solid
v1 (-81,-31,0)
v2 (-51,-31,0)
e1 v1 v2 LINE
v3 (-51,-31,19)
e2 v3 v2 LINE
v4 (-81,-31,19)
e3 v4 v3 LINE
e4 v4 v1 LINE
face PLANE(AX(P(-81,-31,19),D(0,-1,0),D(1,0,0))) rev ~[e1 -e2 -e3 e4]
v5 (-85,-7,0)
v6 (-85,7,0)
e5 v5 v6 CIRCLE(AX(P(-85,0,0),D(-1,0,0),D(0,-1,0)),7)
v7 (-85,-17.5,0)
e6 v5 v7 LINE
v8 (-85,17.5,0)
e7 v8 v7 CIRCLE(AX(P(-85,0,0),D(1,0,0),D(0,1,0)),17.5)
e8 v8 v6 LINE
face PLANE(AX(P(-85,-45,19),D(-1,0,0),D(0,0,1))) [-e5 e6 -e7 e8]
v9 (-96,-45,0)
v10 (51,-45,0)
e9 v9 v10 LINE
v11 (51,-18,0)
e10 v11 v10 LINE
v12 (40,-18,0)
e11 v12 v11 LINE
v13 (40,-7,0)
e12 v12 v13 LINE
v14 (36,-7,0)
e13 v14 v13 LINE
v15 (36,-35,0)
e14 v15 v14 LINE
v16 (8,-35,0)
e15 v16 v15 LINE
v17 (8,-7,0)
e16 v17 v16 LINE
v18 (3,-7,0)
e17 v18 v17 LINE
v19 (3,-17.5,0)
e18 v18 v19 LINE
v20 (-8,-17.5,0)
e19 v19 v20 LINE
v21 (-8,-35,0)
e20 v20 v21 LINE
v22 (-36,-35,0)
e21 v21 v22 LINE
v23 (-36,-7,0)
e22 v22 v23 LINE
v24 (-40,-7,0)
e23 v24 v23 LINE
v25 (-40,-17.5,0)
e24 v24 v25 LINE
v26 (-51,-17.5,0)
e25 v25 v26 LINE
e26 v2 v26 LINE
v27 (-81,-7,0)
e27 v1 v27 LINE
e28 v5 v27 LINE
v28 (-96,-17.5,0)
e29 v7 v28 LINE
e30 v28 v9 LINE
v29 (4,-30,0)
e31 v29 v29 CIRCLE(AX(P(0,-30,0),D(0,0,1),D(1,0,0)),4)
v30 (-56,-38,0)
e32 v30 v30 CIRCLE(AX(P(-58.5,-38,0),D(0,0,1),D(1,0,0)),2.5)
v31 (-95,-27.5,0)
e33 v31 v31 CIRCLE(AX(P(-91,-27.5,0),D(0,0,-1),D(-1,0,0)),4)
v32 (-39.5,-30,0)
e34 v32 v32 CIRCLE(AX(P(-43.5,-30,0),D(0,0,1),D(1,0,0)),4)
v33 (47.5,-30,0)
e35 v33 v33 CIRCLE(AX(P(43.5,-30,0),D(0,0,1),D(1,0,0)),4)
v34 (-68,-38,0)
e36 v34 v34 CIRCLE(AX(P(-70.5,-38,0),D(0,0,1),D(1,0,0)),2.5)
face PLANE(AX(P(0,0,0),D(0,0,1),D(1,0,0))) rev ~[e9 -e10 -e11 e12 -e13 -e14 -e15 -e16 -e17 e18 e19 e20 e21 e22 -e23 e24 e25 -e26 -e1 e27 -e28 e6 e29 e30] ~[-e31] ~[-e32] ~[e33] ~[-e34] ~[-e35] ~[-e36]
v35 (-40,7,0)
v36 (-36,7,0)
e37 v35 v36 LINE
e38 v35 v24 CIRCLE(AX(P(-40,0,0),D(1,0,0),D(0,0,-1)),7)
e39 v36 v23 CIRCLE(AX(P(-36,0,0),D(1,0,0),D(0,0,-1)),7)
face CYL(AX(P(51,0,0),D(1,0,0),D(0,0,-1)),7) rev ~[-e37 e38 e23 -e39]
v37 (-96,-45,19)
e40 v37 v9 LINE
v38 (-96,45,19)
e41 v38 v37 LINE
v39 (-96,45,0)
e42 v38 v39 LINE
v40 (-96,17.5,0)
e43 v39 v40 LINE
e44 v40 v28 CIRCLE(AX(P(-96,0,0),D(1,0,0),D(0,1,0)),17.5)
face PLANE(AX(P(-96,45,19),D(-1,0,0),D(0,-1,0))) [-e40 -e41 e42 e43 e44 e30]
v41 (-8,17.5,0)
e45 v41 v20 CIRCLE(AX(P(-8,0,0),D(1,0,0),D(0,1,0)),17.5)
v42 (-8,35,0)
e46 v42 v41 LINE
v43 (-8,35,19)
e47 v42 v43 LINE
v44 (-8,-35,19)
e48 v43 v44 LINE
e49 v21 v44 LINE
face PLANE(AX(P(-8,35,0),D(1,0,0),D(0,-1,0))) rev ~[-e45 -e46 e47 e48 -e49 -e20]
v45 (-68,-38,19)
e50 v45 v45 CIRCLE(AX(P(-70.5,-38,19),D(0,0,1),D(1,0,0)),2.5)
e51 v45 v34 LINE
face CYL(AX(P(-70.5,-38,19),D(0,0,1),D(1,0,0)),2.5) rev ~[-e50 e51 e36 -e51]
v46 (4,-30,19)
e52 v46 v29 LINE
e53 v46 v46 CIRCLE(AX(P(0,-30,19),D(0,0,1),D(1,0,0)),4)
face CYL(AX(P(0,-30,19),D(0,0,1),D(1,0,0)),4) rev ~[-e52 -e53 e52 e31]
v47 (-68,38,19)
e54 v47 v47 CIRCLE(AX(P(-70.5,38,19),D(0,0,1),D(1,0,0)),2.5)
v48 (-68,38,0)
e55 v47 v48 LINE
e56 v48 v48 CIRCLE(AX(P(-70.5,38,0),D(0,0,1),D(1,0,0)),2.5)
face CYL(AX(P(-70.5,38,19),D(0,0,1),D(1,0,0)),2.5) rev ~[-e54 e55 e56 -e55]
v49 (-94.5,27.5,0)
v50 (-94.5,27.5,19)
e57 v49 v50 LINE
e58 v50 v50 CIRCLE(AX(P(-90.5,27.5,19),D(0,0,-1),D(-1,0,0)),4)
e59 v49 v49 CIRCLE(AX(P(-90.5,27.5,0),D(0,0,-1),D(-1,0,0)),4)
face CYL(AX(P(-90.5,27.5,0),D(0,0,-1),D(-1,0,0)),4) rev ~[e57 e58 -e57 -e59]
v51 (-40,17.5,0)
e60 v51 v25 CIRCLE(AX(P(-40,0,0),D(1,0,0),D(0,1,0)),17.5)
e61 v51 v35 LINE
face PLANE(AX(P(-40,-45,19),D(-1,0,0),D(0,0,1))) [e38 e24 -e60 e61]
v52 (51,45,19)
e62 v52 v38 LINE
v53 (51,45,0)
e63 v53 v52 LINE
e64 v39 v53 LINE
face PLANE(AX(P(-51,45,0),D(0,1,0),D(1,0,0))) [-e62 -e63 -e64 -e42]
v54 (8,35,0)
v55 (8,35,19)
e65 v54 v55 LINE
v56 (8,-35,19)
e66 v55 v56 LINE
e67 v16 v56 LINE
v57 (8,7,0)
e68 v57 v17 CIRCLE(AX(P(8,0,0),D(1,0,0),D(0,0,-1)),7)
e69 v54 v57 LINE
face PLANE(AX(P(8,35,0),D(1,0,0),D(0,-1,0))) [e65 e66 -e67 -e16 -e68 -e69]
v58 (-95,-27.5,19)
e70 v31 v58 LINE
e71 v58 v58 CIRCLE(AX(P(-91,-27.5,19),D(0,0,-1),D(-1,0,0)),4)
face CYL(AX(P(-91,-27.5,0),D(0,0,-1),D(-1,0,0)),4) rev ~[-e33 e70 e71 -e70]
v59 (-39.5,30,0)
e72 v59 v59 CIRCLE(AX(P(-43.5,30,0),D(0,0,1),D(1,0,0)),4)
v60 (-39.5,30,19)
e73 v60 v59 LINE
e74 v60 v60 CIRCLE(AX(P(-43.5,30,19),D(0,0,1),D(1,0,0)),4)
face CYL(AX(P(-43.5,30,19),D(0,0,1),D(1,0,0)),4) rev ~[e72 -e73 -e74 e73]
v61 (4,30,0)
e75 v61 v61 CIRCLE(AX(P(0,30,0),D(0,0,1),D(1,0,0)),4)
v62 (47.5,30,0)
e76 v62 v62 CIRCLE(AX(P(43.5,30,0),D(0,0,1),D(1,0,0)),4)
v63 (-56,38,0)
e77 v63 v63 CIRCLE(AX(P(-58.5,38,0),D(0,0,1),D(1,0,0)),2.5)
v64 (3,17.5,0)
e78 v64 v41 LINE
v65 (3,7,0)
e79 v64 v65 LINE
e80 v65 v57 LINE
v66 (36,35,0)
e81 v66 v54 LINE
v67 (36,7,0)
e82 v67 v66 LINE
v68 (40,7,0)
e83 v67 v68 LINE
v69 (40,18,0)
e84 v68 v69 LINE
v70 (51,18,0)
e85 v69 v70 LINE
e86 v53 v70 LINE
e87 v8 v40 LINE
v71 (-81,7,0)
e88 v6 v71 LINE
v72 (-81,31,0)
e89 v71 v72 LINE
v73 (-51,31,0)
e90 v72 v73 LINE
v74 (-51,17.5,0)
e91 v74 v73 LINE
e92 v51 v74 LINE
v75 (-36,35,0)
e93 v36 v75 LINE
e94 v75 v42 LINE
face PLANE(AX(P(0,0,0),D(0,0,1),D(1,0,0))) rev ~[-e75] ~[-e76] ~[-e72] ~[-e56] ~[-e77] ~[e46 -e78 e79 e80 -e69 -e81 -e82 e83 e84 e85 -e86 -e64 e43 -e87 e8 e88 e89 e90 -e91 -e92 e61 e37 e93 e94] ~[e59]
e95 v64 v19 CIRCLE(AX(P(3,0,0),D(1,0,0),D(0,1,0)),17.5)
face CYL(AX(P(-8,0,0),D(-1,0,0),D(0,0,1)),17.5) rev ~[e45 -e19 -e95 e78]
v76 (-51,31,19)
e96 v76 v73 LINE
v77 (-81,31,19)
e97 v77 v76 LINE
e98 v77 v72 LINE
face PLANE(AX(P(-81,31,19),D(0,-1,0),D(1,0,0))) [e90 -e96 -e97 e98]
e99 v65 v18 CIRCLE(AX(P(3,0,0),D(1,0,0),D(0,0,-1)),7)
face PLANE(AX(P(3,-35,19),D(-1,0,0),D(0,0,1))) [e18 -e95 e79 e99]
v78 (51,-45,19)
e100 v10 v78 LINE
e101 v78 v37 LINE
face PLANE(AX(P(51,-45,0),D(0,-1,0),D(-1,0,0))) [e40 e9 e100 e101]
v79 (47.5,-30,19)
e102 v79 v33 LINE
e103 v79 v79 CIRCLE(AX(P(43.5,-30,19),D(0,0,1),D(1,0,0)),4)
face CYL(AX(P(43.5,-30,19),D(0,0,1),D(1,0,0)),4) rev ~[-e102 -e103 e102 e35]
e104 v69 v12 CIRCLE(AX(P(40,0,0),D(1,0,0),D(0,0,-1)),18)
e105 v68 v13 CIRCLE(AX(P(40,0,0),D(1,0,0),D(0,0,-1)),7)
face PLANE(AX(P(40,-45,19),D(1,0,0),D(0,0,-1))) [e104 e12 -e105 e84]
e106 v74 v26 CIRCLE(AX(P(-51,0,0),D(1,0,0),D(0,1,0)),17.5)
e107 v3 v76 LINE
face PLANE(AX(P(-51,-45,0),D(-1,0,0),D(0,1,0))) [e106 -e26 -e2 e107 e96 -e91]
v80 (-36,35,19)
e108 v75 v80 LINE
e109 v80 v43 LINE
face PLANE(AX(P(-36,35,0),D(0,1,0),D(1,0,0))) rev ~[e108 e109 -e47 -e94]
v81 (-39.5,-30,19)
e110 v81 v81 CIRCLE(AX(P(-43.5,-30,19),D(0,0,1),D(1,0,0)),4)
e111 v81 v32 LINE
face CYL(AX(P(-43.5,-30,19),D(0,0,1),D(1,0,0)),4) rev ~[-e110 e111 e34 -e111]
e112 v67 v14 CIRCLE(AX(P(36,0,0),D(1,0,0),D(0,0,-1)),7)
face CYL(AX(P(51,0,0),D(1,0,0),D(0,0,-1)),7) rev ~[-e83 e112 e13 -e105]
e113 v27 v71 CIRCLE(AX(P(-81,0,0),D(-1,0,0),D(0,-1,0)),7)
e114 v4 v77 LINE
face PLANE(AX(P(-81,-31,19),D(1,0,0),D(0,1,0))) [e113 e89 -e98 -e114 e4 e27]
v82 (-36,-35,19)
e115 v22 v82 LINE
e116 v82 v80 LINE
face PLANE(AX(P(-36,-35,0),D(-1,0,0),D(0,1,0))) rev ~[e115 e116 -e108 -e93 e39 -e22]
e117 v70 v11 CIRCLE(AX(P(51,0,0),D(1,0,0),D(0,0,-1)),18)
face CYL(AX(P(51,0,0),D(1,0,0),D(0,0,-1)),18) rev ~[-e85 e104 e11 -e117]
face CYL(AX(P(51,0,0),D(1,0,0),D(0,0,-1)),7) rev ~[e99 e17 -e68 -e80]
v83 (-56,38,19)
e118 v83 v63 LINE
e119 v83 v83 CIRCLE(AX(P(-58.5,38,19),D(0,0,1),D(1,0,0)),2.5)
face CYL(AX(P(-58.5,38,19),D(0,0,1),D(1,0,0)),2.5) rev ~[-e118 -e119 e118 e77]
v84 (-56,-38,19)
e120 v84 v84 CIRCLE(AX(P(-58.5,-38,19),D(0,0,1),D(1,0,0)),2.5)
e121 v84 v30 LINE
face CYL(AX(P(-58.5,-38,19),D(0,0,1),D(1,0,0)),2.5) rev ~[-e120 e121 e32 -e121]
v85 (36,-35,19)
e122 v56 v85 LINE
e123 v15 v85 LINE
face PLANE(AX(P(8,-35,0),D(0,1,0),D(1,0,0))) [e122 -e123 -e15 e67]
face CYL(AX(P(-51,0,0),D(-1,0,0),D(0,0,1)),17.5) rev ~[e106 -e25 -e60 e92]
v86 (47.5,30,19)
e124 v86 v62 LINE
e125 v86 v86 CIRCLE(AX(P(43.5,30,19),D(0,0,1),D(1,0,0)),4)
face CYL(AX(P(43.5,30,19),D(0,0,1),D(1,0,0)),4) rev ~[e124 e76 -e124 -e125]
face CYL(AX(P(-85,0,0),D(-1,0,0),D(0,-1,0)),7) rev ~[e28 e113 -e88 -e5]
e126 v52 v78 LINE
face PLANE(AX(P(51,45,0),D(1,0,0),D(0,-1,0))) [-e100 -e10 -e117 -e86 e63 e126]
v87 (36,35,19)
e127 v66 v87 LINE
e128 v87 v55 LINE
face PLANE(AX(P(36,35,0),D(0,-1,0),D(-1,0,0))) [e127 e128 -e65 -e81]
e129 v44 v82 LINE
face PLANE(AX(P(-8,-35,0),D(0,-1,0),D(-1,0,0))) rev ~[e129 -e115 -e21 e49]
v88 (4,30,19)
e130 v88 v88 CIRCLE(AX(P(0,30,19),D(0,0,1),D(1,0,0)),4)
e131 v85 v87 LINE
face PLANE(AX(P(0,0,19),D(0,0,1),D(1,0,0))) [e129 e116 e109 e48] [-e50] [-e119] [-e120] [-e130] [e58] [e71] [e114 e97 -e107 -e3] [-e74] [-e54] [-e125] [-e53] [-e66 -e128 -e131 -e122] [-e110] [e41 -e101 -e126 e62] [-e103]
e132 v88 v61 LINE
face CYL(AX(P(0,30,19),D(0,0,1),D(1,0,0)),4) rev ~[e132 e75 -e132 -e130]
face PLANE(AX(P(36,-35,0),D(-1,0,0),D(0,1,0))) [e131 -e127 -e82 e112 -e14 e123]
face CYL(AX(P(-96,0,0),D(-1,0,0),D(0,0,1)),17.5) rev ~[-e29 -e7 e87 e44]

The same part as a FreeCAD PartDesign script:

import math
import FreeCAD as App
import Part
import Sketcher

V = App.Vector


def add_polygon(sketch, points):
    """Adds a closed chain of lines whose ends are joined by coincident constraints."""
    first, n = sketch.GeometryCount, len(points)
    for a, b in zip(points, points[1:] + points[:1]):
        sketch.addGeometry(Part.LineSegment(App.Vector(*a, 0), App.Vector(*b, 0)), False)
    for i in range(n):
        sketch.addConstraint(Sketcher.Constraint("Coincident", first + i, 2, first + (i + 1) % n, 1))

doc = App.newDocument("Part")
params = doc.addObject("Spreadsheet::Sheet", "Params")
for row, (alias, value) in enumerate([
    ("sketch1_width", "28 mm"),
    ("sketch1_height", "70 mm"),
    ("pad1_length", "19 mm"),
    ("sketch2_diameter", "14 mm"),
    ("sketch3_diameter", "36 mm"),
    ("pocket2_length", "11 mm"),
    ("sketch4_diameter", "35 mm"),
    ("pocket3_length", "11 mm"),
    ("sketch5_diameter", "35 mm"),
    ("pocket4_length", "11 mm"),
    ("sketch6_diameter", "8 mm"),
    ("sketch7_width", "30 mm"),
    ("sketch7_height", "14 mm"),
    ("pad2_length", "19 mm"),
    ("sketch8_diameter", "35 mm"),
    ("pocket6_length", "11 mm"),
    ("sketch9_diameter", "8 mm"),
    ("sketch10_diameter", "5 mm"),
    ("sketch11_radius", "7 mm"),
    ("pocket9_length", "10 mm"),
], start=1):
    params.set(f"A{row}", alias)
    params.set(f"B{row}", "=" + value)
    params.setAlias(f"B{row}", alias)

body = doc.addObject("PartDesign::Body", "Body")

# Sketch on XY plane
sketch1 = body.newObject("Sketcher::SketchObject", "Sketch")
sketch1.AttachmentSupport = (doc.getObject("XY_Plane"), [""])
sketch1.MapMode = "FlatFace"
add_polygon(sketch1, [(-51, -45), (51, -45), (51, 45), (-51, 45)])  # lines 0-3
add_polygon(sketch1, [(-36, -35), (-36, 35), (-8, 35), (-8, -35)])  # lines 4-7
add_polygon(sketch1, [(8, 35), (36, 35), (36, -35), (8, -35)])  # lines 8-11
sketch1.addConstraint(Sketcher.Constraint("Horizontal", 0))
sketch1.addConstraint(Sketcher.Constraint("Vertical", 1))
sketch1.addConstraint(Sketcher.Constraint("Horizontal", 2))
sketch1.addConstraint(Sketcher.Constraint("Vertical", 3))
sketch1.addConstraint(Sketcher.Constraint("Vertical", 4))
sketch1.addConstraint(Sketcher.Constraint("Horizontal", 5))
sketch1.addConstraint(Sketcher.Constraint("Vertical", 6))
sketch1.addConstraint(Sketcher.Constraint("Horizontal", 7))
sketch1.addConstraint(Sketcher.Constraint("Horizontal", 8))
sketch1.addConstraint(Sketcher.Constraint("Vertical", 9))
sketch1.addConstraint(Sketcher.Constraint("Horizontal", 10))
sketch1.addConstraint(Sketcher.Constraint("Vertical", 11))
sketch1.addConstraint(Sketcher.Constraint("Symmetric", 0, 2, 2, 2, -1, 1))
sketch1.addConstraint(Sketcher.Constraint("Symmetric", 7, 2, 8, 2, -1, 1))
sketch1.addConstraint(Sketcher.Constraint("Symmetric", 5, 2, 10, 2, -1, 1))
sketch1.addConstraint(Sketcher.Constraint("Horizontal", 5, 2, 8, 2))
sketch1.addConstraint(Sketcher.Constraint("DistanceX", 5, 1, 5, 2, 28.0))
sketch1.addConstraint(Sketcher.Constraint("DistanceY", 4, 1, 4, 2, 70.0))
sketch1.addConstraint(Sketcher.Constraint("DistanceX", 2, 2, 4, 2, 15.0))
sketch1.addConstraint(Sketcher.Constraint("DistanceY", 4, 2, 2, 2, 10.0))
sketch1.addConstraint(Sketcher.Constraint("DistanceX", 6, 2, 10, 2, 16.0))
sketch1.setExpression("Constraints[28]", "Params.sketch1_width")
sketch1.setExpression("Constraints[29]", "Params.sketch1_height")
pad1 = body.newObject("PartDesign::Pad", "Pad")
pad1.Profile = sketch1
pad1.setExpression("Length", "Params.pad1_length")

# Sketch on YZ plane
sketch2 = body.newObject("Sketcher::SketchObject", "Sketch001")
sketch2.AttachmentSupport = (doc.getObject("YZ_Plane"), [""])
sketch2.MapMode = "FlatFace"
sketch2.AttachmentOffset = App.Placement(V(0, 0, 51), App.Rotation())
sketch2.addGeometry(Part.Circle(V(0, 0, 0), V(0, 0, 1), 7), False)
sketch2.addConstraint(Sketcher.Constraint("Coincident", 0, 3, -1, 1))
sketch2.addConstraint(Sketcher.Constraint("Diameter", 0, 14.0))
sketch2.setExpression("Constraints[1]", "Params.sketch2_diameter")
pocket1 = body.newObject("PartDesign::Pocket", "Pocket")
pocket1.Profile = sketch2
pocket1.Type = "ThroughAll"

# Sketch on YZ plane
sketch3 = body.newObject("Sketcher::SketchObject", "Sketch002")
sketch3.AttachmentSupport = (doc.getObject("YZ_Plane"), [""])
sketch3.MapMode = "FlatFace"
sketch3.AttachmentOffset = App.Placement(V(0, 0, 51), App.Rotation())
sketch3.addGeometry(Part.Circle(V(0, 0, 0), V(0, 0, 1), 18), False)
sketch3.addConstraint(Sketcher.Constraint("Coincident", 0, 3, -1, 1))
sketch3.addConstraint(Sketcher.Constraint("Diameter", 0, 36.0))
sketch3.setExpression("Constraints[1]", "Params.sketch3_diameter")
pocket2 = body.newObject("PartDesign::Pocket", "Pocket001")
pocket2.Profile = sketch3
pocket2.setExpression("Length", "Params.pocket2_length")

# Sketch on YZ plane
sketch4 = body.newObject("Sketcher::SketchObject", "Sketch003")
sketch4.AttachmentSupport = (doc.getObject("YZ_Plane"), [""])
sketch4.MapMode = "FlatFace"
sketch4.AttachmentOffset = App.Placement(V(0, 0, -51), App.Rotation())
sketch4.addGeometry(Part.Circle(V(0, 0, 0), V(0, 0, 1), 17.5), False)
sketch4.addConstraint(Sketcher.Constraint("Coincident", 0, 3, -1, 1))
sketch4.addConstraint(Sketcher.Constraint("Diameter", 0, 35.0))
sketch4.setExpression("Constraints[1]", "Params.sketch4_diameter")
pocket3 = body.newObject("PartDesign::Pocket", "Pocket002")
pocket3.Profile = sketch4
pocket3.setExpression("Length", "Params.pocket3_length")
pocket3.Reversed = True

# Sketch on YZ plane
sketch5 = body.newObject("Sketcher::SketchObject", "Sketch004")
sketch5.AttachmentSupport = (doc.getObject("YZ_Plane"), [""])
sketch5.MapMode = "FlatFace"
sketch5.AttachmentOffset = App.Placement(V(0, 0, -8), App.Rotation())
sketch5.addGeometry(Part.Circle(V(0, 0, 0), V(0, 0, 1), 17.5), False)
sketch5.addConstraint(Sketcher.Constraint("Coincident", 0, 3, -1, 1))
sketch5.addConstraint(Sketcher.Constraint("Diameter", 0, 35.0))
sketch5.setExpression("Constraints[1]", "Params.sketch5_diameter")
pocket4 = body.newObject("PartDesign::Pocket", "Pocket003")
pocket4.Profile = sketch5
pocket4.setExpression("Length", "Params.pocket4_length")
pocket4.Reversed = True

# Sketch on XY plane
sketch6 = body.newObject("Sketcher::SketchObject", "Sketch005")
sketch6.AttachmentSupport = (doc.getObject("XY_Plane"), [""])
sketch6.MapMode = "FlatFace"
sketch6.AttachmentOffset = App.Placement(V(0, 0, 19), App.Rotation())
sketch6.addGeometry(Part.Circle(V(0, 30, 0), V(0, 0, 1), 4), False)
sketch6.addGeometry(Part.Circle(V(0, -30, 0), V(0, 0, 1), 4), False)
sketch6.addGeometry(Part.Circle(V(-43.5, 30, 0), V(0, 0, 1), 4), False)
sketch6.addGeometry(Part.Circle(V(-43.5, -30, 0), V(0, 0, 1), 4), False)
sketch6.addGeometry(Part.Circle(V(43.5, -30, 0), V(0, 0, 1), 4), False)
sketch6.addGeometry(Part.Circle(V(43.5, 30, 0), V(0, 0, 1), 4), False)
sketch6.addConstraint(Sketcher.Constraint("Equal", 0, 1))
sketch6.addConstraint(Sketcher.Constraint("Equal", 1, 2))
sketch6.addConstraint(Sketcher.Constraint("Equal", 2, 3))
sketch6.addConstraint(Sketcher.Constraint("Equal", 3, 4))
sketch6.addConstraint(Sketcher.Constraint("Equal", 4, 5))
sketch6.addConstraint(Sketcher.Constraint("Symmetric", 0, 3, 1, 3, -1, 1))
sketch6.addConstraint(Sketcher.Constraint("Symmetric", 2, 3, 4, 3, -1, 1))
sketch6.addConstraint(Sketcher.Constraint("Symmetric", 3, 3, 5, 3, -1, 1))
sketch6.addConstraint(Sketcher.Constraint("Symmetric", 3, 3, 4, 3, -2))
sketch6.addConstraint(Sketcher.Constraint("PointOnObject", 0, 3, -2))
sketch6.addConstraint(Sketcher.Constraint("Horizontal", 0, 3, 2, 3))
sketch6.addConstraint(Sketcher.Constraint("Diameter", 0, 8.0))
sketch6.addConstraint(Sketcher.Constraint("DistanceY", 1, 3, 0, 3, 60.0))
sketch6.addConstraint(Sketcher.Constraint("DistanceX", 3, 3, 4, 3, 87.0))
sketch6.setExpression("Constraints[11]", "Params.sketch6_diameter")
pocket5 = body.newObject("PartDesign::Pocket", "Pocket004")
pocket5.Profile = sketch6
pocket5.Type = "ThroughAll"

# Sketch on XY plane
sketch7 = body.newObject("Sketcher::SketchObject", "Sketch006")
sketch7.AttachmentSupport = (doc.getObject("XY_Plane"), [""])
sketch7.MapMode = "FlatFace"
sketch7.AttachmentOffset = App.Placement(V(0, 0, 19), App.Rotation())
add_polygon(sketch7, [(-51, 31), (-51, 45), (-96, 45), (-96, -45), (-51, -45), (-51, -31), (-81, -31), (-81, 31)])  # lines 0-7
sketch7.addConstraint(Sketcher.Constraint("Vertical", 0))
sketch7.addConstraint(Sketcher.Constraint("Horizontal", 1))
sketch7.addConstraint(Sketcher.Constraint("Vertical", 2))
sketch7.addConstraint(Sketcher.Constraint("Horizontal", 3))
sketch7.addConstraint(Sketcher.Constraint("Vertical", 4))
sketch7.addConstraint(Sketcher.Constraint("Horizontal", 5))
sketch7.addConstraint(Sketcher.Constraint("Vertical", 6))
sketch7.addConstraint(Sketcher.Constraint("Horizontal", 7))
sketch7.addConstraint(Sketcher.Constraint("Symmetric", 0, 2, 3, 2, -1))
sketch7.addConstraint(Sketcher.Constraint("Equal", 0, 4))
sketch7.addConstraint(Sketcher.Constraint("DistanceX", 5, 2, 5, 1, 30.0))
sketch7.addConstraint(Sketcher.Constraint("DistanceY", 0, 1, 0, 2, 14.0))
sketch7.addConstraint(Sketcher.Constraint("DistanceY", 4, 2, -1, 1, 31.0))
sketch7.addConstraint(Sketcher.Constraint("DistanceX", 2, 2, 5, 2, 15.0))
sketch7.addConstraint(Sketcher.Constraint("DistanceX", 0, 2, -1, 1, 51.0))
sketch7.setExpression("Constraints[18]", "Params.sketch7_width")
sketch7.setExpression("Constraints[19]", "Params.sketch7_height")
pad2 = body.newObject("PartDesign::Pad", "Pad001")
pad2.Profile = sketch7
pad2.setExpression("Length", "Params.pad2_length")
pad2.Reversed = True

# Sketch on YZ plane
sketch8 = body.newObject("Sketcher::SketchObject", "Sketch007")
sketch8.AttachmentSupport = (doc.getObject("YZ_Plane"), [""])
sketch8.MapMode = "FlatFace"
sketch8.AttachmentOffset = App.Placement(V(0, 0, -96), App.Rotation())
sketch8.addGeometry(Part.Circle(V(0, 0, 0), V(0, 0, 1), 17.5), False)
sketch8.addConstraint(Sketcher.Constraint("Coincident", 0, 3, -1, 1))
sketch8.addConstraint(Sketcher.Constraint("Diameter", 0, 35.0))
sketch8.setExpression("Constraints[1]", "Params.sketch8_diameter")
pocket6 = body.newObject("PartDesign::Pocket", "Pocket005")
pocket6.Profile = sketch8
pocket6.setExpression("Length", "Params.pocket6_length")
pocket6.Reversed = True

# Sketch on XY plane
sketch9 = body.newObject("Sketcher::SketchObject", "Sketch008")
sketch9.AttachmentSupport = (doc.getObject("XY_Plane"), [""])
sketch9.MapMode = "FlatFace"
sketch9.addGeometry(Part.Circle(V(-90.5, 27.5, 0), V(0, 0, 1), 4), False)
sketch9.addGeometry(Part.Circle(V(-91, -27.5, 0), V(0, 0, 1), 4), False)
sketch9.addConstraint(Sketcher.Constraint("Equal", 0, 1))
sketch9.addConstraint(Sketcher.Constraint("Diameter", 0, 8.0))
sketch9.addConstraint(Sketcher.Constraint("DistanceX", 1, 3, -1, 1, 91.0))
sketch9.addConstraint(Sketcher.Constraint("DistanceY", 1, 3, 0, 3, 55.0))
sketch9.addConstraint(Sketcher.Constraint("DistanceX", 0, 3, -1, 1, 90.5))
sketch9.addConstraint(Sketcher.Constraint("DistanceY", -1, 1, 0, 3, 27.5))
sketch9.setExpression("Constraints[1]", "Params.sketch9_diameter")
pocket7 = body.newObject("PartDesign::Pocket", "Pocket006")
pocket7.Profile = sketch9
pocket7.Type = "ThroughAll"
pocket7.Reversed = True

# Sketch on XY plane
sketch10 = body.newObject("Sketcher::SketchObject", "Sketch009")
sketch10.AttachmentSupport = (doc.getObject("XY_Plane"), [""])
sketch10.MapMode = "FlatFace"
sketch10.AttachmentOffset = App.Placement(V(0, 0, 19), App.Rotation())
sketch10.addGeometry(Part.Circle(V(-58.5, 38, 0), V(0, 0, 1), 2.5), False)
sketch10.addGeometry(Part.Circle(V(-70.5, 38, 0), V(0, 0, 1), 2.5), False)
sketch10.addGeometry(Part.Circle(V(-70.5, -38, 0), V(0, 0, 1), 2.5), False)
sketch10.addGeometry(Part.Circle(V(-58.5, -38, 0), V(0, 0, 1), 2.5), False)
sketch10.addConstraint(Sketcher.Constraint("Equal", 0, 1))
sketch10.addConstraint(Sketcher.Constraint("Equal", 1, 2))
sketch10.addConstraint(Sketcher.Constraint("Equal", 2, 3))
sketch10.addConstraint(Sketcher.Constraint("Symmetric", 1, 3, 2, 3, -1))
sketch10.addConstraint(Sketcher.Constraint("Symmetric", 0, 3, 3, 3, -1))
sketch10.addConstraint(Sketcher.Constraint("Horizontal", 0, 3, 1, 3))
sketch10.addConstraint(Sketcher.Constraint("Diameter", 0, 5.0))
sketch10.addConstraint(Sketcher.Constraint("DistanceY", -1, 1, 0, 3, 38.0))
sketch10.addConstraint(Sketcher.Constraint("DistanceX", 1, 3, 0, 3, 12.0))
sketch10.addConstraint(Sketcher.Constraint("DistanceX", 0, 3, -1, 1, 58.5))
sketch10.setExpression("Constraints[6]", "Params.sketch10_diameter")
pocket8 = body.newObject("PartDesign::Pocket", "Pocket007")
pocket8.Profile = sketch10
pocket8.Type = "ThroughAll"

# Sketch on YZ plane
sketch11 = body.newObject("Sketcher::SketchObject", "Sketch010")
sketch11.AttachmentSupport = (doc.getObject("YZ_Plane"), [""])
sketch11.MapMode = "FlatFace"
sketch11.AttachmentOffset = App.Placement(V(0, 0, -85), App.Rotation())
sketch11.addGeometry(Part.LineSegment(V(7, 0, 0), V(-7, 0, 0)), False)
sketch11.addGeometry(Part.ArcOfCircle(Part.Circle(V(0, 0, 0), V(0, 0, 1), 7), math.radians(0), math.radians(180)), False)
sketch11.addConstraint(Sketcher.Constraint("Coincident", 0, 1, 1, 1))
sketch11.addConstraint(Sketcher.Constraint("Coincident", 1, 2, 0, 2))
sketch11.addConstraint(Sketcher.Constraint("Horizontal", 0))
sketch11.addConstraint(Sketcher.Constraint("Coincident", 1, 3, -1, 1))
sketch11.addConstraint(Sketcher.Constraint("PointOnObject", 0, 1, -1))
sketch11.addConstraint(Sketcher.Constraint("Radius", 1, 7.0))
sketch11.setExpression("Constraints[5]", "Params.sketch11_radius")
pocket9 = body.newObject("PartDesign::Pocket", "Pocket008")
pocket9.Profile = sketch11
pocket9.setExpression("Length", "Params.pocket9_length")
pocket9.Reversed = True

doc.recompute()
